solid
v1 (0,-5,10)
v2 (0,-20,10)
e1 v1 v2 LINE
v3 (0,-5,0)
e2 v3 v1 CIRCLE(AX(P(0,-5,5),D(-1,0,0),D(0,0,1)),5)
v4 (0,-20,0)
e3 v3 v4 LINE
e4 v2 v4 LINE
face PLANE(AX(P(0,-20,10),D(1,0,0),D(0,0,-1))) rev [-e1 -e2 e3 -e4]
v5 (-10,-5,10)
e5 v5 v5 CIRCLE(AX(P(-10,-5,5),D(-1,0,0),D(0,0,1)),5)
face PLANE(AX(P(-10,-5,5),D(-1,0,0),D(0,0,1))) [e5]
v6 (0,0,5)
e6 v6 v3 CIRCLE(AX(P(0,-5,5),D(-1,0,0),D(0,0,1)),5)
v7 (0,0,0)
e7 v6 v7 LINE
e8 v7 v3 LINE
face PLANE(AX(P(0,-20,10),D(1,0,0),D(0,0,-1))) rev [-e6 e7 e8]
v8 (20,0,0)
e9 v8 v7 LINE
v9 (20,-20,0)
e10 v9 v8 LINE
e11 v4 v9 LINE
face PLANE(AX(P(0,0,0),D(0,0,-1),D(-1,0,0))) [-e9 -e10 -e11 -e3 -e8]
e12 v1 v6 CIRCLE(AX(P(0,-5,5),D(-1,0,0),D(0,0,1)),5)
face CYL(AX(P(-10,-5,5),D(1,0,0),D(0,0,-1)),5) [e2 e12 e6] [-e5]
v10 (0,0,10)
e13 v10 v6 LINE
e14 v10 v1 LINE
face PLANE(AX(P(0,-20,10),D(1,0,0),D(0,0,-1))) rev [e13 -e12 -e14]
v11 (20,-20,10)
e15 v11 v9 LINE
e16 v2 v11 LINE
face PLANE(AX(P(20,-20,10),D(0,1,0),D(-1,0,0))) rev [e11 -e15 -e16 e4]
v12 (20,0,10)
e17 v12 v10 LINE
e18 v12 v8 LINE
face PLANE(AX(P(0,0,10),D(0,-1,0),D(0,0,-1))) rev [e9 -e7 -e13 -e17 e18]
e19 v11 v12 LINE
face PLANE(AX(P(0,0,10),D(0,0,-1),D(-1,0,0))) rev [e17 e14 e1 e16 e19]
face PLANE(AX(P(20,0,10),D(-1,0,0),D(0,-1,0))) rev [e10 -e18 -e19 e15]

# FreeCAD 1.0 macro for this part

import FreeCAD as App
import Part
import Sketcher


def add_polygon(sketch, points):
    """Adds a closed chain of lines whose ends are joined by coincident constraints."""
    first, n = sketch.GeometryCount, len(points)
    for a, b in zip(points, points[1:] + points[:1]):
        sketch.addGeometry(Part.LineSegment(App.Vector(*a, 0), App.Vector(*b, 0)), False)
    for i in range(n):
        sketch.addConstraint(Sketcher.Constraint("Coincident", first + i, 2, first + (i + 1) % n, 1))

doc = App.newDocument("Part")
body = doc.addObject("PartDesign::Body", "Body")

# Sketch on XY plane
sketch1 = doc.addObject("Sketcher::SketchObject", "Sketch")
body.addObject(sketch1)
sketch1.AttachmentSupport = (doc.XY_Plane, [""])
sketch1.MapMode = "FlatFace"
add_polygon(sketch1, [(0, 0), (0, -20), (20, -20), (20, 0)])  # lines 0-3
sketch1.addConstraint([
    Sketcher.Constraint("Vertical", 0),
    Sketcher.Constraint("Horizontal", 1),
    Sketcher.Constraint("Vertical", 2),
    Sketcher.Constraint("Horizontal", 3),
    Sketcher.Constraint("Coincident", 3, 2, -1, 1),
    Sketcher.Constraint("Equal", 3, 0),
    Sketcher.Constraint("DistanceX", 1, 1, 1, 2, 20.0),
])
pad1 = doc.addObject("PartDesign::Pad", "Pad")
body.addObject(pad1)
pad1.Profile = sketch1
pad1.Length = 10

# Sketch on YZ plane
sketch2 = doc.addObject("Sketcher::SketchObject", "Sketch001")
body.addObject(sketch2)
sketch2.AttachmentSupport = (doc.YZ_Plane, [""])
sketch2.MapMode = "FlatFace"
sketch2.addGeometry(Part.Circle(App.Vector(-5, 5, 0), App.Vector(0, 0, 1), 5), False)
sketch2.addConstraint([
    Sketcher.Constraint("Diameter", 0, 10.0),
    Sketcher.Constraint("DistanceX", 0, 3, -1, 1, 5.0),
    Sketcher.Constraint("DistanceY", -1, 1, 0, 3, 5.0),
])
pad2 = doc.addObject("PartDesign::Pad", "Pad001")
body.addObject(pad2)
pad2.Profile = sketch2
pad2.Length = 10
pad2.Reversed = True

doc.recompute()
